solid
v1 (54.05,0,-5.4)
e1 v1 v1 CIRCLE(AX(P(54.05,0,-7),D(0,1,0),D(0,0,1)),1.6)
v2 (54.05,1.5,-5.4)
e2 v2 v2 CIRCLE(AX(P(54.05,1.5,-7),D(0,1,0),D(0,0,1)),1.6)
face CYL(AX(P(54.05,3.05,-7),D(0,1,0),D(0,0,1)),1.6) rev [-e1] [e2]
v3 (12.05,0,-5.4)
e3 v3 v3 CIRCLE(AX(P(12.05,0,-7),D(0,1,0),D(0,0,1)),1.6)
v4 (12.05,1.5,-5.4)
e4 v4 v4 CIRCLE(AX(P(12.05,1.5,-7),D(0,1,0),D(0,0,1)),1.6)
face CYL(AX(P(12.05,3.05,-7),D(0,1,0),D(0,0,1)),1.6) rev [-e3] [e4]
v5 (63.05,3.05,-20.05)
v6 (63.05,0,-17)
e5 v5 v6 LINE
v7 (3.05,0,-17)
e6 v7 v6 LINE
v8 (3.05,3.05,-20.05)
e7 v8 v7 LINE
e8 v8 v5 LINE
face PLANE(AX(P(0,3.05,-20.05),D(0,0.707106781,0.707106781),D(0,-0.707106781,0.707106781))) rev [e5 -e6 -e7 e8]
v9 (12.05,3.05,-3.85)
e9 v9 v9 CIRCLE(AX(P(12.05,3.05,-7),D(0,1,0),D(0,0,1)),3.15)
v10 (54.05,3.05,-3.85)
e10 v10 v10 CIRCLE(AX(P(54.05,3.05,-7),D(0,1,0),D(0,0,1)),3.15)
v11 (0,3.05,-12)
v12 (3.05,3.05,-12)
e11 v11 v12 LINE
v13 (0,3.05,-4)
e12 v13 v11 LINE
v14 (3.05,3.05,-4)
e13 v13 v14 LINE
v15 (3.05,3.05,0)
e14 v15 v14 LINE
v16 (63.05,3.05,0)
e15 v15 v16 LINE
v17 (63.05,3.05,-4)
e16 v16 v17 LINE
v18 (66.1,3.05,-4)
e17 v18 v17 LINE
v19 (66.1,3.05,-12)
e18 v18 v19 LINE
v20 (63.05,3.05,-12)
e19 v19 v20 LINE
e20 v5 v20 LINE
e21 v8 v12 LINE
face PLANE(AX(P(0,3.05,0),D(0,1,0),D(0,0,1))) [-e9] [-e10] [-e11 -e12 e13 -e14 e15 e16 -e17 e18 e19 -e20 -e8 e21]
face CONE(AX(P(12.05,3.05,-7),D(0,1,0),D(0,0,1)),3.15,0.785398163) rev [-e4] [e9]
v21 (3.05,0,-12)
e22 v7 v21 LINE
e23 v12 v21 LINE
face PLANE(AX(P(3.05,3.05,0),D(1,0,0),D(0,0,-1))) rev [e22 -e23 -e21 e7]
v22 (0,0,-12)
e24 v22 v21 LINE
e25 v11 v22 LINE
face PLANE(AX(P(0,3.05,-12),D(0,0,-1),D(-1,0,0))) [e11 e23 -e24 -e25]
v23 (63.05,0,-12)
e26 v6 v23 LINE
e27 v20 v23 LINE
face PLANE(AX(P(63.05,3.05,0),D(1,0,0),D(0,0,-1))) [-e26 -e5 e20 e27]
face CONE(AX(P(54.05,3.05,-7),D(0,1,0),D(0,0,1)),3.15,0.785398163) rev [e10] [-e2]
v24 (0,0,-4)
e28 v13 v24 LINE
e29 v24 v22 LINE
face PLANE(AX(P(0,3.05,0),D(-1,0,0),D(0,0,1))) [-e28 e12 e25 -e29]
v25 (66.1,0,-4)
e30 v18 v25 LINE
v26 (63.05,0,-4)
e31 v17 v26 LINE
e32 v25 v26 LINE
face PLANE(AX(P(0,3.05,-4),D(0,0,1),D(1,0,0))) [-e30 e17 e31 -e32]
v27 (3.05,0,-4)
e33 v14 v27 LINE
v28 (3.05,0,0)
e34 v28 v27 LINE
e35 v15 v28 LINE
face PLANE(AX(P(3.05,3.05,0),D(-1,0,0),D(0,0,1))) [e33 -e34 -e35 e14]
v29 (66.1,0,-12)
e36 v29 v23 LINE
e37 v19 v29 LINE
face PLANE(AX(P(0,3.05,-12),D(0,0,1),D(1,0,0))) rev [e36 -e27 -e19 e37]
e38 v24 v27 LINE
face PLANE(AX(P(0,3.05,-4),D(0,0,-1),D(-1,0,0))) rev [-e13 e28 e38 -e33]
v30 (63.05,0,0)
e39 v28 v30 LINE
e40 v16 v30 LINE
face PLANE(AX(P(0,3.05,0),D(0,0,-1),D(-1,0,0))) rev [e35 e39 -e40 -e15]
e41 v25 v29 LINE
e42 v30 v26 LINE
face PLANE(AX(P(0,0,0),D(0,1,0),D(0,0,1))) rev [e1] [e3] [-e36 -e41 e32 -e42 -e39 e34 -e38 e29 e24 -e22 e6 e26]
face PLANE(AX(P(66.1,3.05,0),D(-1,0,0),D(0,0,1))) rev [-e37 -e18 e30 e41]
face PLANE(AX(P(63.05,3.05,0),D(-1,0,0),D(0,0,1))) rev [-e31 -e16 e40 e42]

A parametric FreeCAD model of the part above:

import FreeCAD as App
import Part
import Sketcher
from FreeCAD import Vector
Q = App.Units.Quantity


def add_polygon(sketch, points):
    """Adds a closed chain of lines whose ends are joined by coincident constraints."""
    first, n = sketch.GeometryCount, len(points)
    for a, b in zip(points, points[1:] + points[:1]):
        sketch.addGeometry(Part.LineSegment(App.Vector(*a, 0), App.Vector(*b, 0)), False)
    for i in range(n):
        sketch.addConstraint(Sketcher.Constraint("Coincident", first + i, 2, first + (i + 1) % n, 1))

doc = App.newDocument("Part")
body = doc.addObject("PartDesign::Body", "Body")

sketch1 = body.newObject("Sketcher::SketchObject", "Sketch")
sketch1.AttachmentSupport = (doc.getObject("XZ_Plane"), [""])
sketch1.MapMode = "FlatFace"
add_polygon(sketch1, [(3.05, -20.05), (3.05, -12), (0, -12), (0, -4), (3.05, -4), (3.05, 0), (63.05, 0), (63.05, -4), (66.1, -4), (66.1, -12), (63.05, -12), (63.05, -20.05)])
sketch1.addGeometry(Part.Circle(Vector(12.05, -7, 0), Vector(0, 0, 1), 1.5), False)
sketch1.addGeometry(Part.Circle(Vector(54.05, -7, 0), Vector(0, 0, 1), 1.5), False)
sketch1.addConstraint([
    Sketcher.Constraint("Vertical", 0),
    Sketcher.Constraint("Horizontal", 1),
    Sketcher.Constraint("Vertical", 2),
    Sketcher.Constraint("Horizontal", 3),
    Sketcher.Constraint("Vertical", 4),
    Sketcher.Constraint("Horizontal", 5),
    Sketcher.Constraint("Vertical", 6),
    Sketcher.Constraint("Horizontal", 7),
    Sketcher.Constraint("Vertical", 8),
    Sketcher.Constraint("Horizontal", 9),
    Sketcher.Constraint("Vertical", 10),
    Sketcher.Constraint("Horizontal", 11),
    Sketcher.Constraint("Equal", 12, 13),
    Sketcher.Constraint("PointOnObject", 1, 2, -2),
    Sketcher.Constraint("PointOnObject", 4, 2, -1),
    Sketcher.Constraint("Horizontal", 12, 3, 13, 3),
    Sketcher.Constraint("Horizontal", 3, 2, 6, 2),
    Sketcher.Constraint("Horizontal", 1, 2, 8, 2),
    Sketcher.Constraint("Vertical", 0, 2, 3, 2),
    Sketcher.Constraint("Vertical", 6, 2, 9, 2),
    Sketcher.Constraint("Equal", 3, 7),
    Sketcher.Constraint("Diameter", 12, Q("3 mm")),
    Sketcher.Constraint("DistanceX", 5, 1, 5, 2, Q("60 mm")),
    Sketcher.Constraint("DistanceY", 2, 1, 2, 2, Q("8 mm")),
    Sketcher.Constraint("DistanceY", 4, 1, 4, 2, Q("4 mm")),
    Sketcher.Constraint("DistanceY", 12, 3, -1, 1, Q("7 mm")),
    Sketcher.Constraint("DistanceX", 12, 3, 13, 3, Q("42 mm")),
    Sketcher.Constraint("DistanceX", 0, 2, 12, 3, Q("9 mm")),
    Sketcher.Constraint("DistanceX", 1, 2, 1, 1, Q("3.05 mm")),
    Sketcher.Constraint("DistanceY", 0, 1, 0, 2, Q("8.05 mm")),
])
pad1 = body.newObject("PartDesign::Pad", "Pad")
pad1.Profile = sketch1
pad1.Length = 3.05
pad1.Reversed = True

sketch2 = body.newObject("Sketcher::SketchObject", "Sketch001")
sketch2.AttachmentSupport = (doc.getObject("YZ_Plane"), [""])
sketch2.MapMode = "FlatFace"
sketch2.AttachmentOffset = App.Placement(Vector(0, 0, 12.05), App.Rotation())
add_polygon(sketch2, [(0, -7), (3.05, -7), (3.05, -3.85), (1.5, -5.4), (0, -5.4)])
sketch2.addGeometry(Part.LineSegment(Vector(3.05, -7, 0), Vector(0, -7, 0)), True)
sketch2.addConstraint([
    Sketcher.Constraint("Horizontal", 0),
    Sketcher.Constraint("Vertical", 1),
    Sketcher.Constraint("Horizontal", 3),
    Sketcher.Constraint("Vertical", 4),
    Sketcher.Constraint("Horizontal", 5),
    Sketcher.Constraint("Coincident", 5, 1, 0, 2),
    Sketcher.Constraint("PointOnObject", 3, 2, -2),
    Sketcher.Constraint("PointOnObject", 5, 2, -2),
    Sketcher.Constraint("Angle", 2, Q("-135 deg")),
    Sketcher.Constraint("DistanceX", 3, 2, 3, 1, Q("1.5 mm")),
    Sketcher.Constraint("DistanceY", 4, 2, 4, 1, Q("1.6 mm")),
    Sketcher.Constraint("DistanceY", 0, 2, -1, 1, Q("7 mm")),
    Sketcher.Constraint("DistanceX", 0, 1, 0, 2, Q("3.05 mm")),
])
groove = body.newObject("PartDesign::Groove", "Groove")
groove.Profile = sketch2
groove.ReferenceAxis = (sketch2, ["Axis0"])
groove.Angle = 360

sketch3 = body.newObject("Sketcher::SketchObject", "Sketch002")
sketch3.AttachmentSupport = (doc.getObject("YZ_Plane"), [""])
sketch3.MapMode = "FlatFace"
sketch3.AttachmentOffset = App.Placement(Vector(0, 0, 54.05), App.Rotation())
add_polygon(sketch3, [(0, -7), (3.05, -7), (3.05, -3.85), (1.5, -5.4), (0, -5.4)])
sketch3.addGeometry(Part.LineSegment(Vector(3.05, -7, 0), Vector(0, -7, 0)), True)
sketch3.addConstraint([
    Sketcher.Constraint("Horizontal", 0),
    Sketcher.Constraint("Vertical", 1),
    Sketcher.Constraint("Horizontal", 3),
    Sketcher.Constraint("Vertical", 4),
    Sketcher.Constraint("Horizontal", 5),
    Sketcher.Constraint("Coincident", 5, 1, 0, 2),
    Sketcher.Constraint("PointOnObject", 3, 2, -2),
    Sketcher.Constraint("PointOnObject", 5, 2, -2),
    Sketcher.Constraint("Angle", 2, Q("-135 deg")),
    Sketcher.Constraint("DistanceX", 3, 2, 3, 1, Q("1.5 mm")),
    Sketcher.Constraint("DistanceY", 4, 2, 4, 1, Q("1.6 mm")),
    Sketcher.Constraint("DistanceY", 0, 2, -1, 1, Q("7 mm")),
    Sketcher.Constraint("DistanceX", 0, 1, 0, 2, Q("3.05 mm")),
])
groove2 = body.newObject("PartDesign::Groove", "Groove001")
groove2.Profile = sketch3
groove2.ReferenceAxis = (sketch3, ["Axis0"])
groove2.Angle = 360

sketch4 = body.newObject("Sketcher::SketchObject", "Sketch003")
sketch4.AttachmentSupport = (doc.getObject("YZ_Plane"), [""])
sketch4.MapMode = "FlatFace"
sketch4.AttachmentOffset = App.Placement(Vector(0, 0, 63.05), App.Rotation())
add_polygon(sketch4, [(3.05, -20.05), (0, -17), (0, -20.05)])
sketch4.addConstraint([
    Sketcher.Constraint("Vertical", 1),
    Sketcher.Constraint("Horizontal", 2),
    Sketcher.Constraint("PointOnObject", 0, 2, -2),
    Sketcher.Constraint("Equal", 2, 1),
    Sketcher.Constraint("DistanceY", 0, 2, -1, 1, Q("17 mm")),
    Sketcher.Constraint("DistanceX", 2, 1, 2, 2, Q("3.05 mm")),
])
pocket1 = body.newObject("PartDesign::Pocket", "Pocket")
pocket1.Profile = sketch4
pocket1.Type = "ThroughAll"

doc.recompute()
